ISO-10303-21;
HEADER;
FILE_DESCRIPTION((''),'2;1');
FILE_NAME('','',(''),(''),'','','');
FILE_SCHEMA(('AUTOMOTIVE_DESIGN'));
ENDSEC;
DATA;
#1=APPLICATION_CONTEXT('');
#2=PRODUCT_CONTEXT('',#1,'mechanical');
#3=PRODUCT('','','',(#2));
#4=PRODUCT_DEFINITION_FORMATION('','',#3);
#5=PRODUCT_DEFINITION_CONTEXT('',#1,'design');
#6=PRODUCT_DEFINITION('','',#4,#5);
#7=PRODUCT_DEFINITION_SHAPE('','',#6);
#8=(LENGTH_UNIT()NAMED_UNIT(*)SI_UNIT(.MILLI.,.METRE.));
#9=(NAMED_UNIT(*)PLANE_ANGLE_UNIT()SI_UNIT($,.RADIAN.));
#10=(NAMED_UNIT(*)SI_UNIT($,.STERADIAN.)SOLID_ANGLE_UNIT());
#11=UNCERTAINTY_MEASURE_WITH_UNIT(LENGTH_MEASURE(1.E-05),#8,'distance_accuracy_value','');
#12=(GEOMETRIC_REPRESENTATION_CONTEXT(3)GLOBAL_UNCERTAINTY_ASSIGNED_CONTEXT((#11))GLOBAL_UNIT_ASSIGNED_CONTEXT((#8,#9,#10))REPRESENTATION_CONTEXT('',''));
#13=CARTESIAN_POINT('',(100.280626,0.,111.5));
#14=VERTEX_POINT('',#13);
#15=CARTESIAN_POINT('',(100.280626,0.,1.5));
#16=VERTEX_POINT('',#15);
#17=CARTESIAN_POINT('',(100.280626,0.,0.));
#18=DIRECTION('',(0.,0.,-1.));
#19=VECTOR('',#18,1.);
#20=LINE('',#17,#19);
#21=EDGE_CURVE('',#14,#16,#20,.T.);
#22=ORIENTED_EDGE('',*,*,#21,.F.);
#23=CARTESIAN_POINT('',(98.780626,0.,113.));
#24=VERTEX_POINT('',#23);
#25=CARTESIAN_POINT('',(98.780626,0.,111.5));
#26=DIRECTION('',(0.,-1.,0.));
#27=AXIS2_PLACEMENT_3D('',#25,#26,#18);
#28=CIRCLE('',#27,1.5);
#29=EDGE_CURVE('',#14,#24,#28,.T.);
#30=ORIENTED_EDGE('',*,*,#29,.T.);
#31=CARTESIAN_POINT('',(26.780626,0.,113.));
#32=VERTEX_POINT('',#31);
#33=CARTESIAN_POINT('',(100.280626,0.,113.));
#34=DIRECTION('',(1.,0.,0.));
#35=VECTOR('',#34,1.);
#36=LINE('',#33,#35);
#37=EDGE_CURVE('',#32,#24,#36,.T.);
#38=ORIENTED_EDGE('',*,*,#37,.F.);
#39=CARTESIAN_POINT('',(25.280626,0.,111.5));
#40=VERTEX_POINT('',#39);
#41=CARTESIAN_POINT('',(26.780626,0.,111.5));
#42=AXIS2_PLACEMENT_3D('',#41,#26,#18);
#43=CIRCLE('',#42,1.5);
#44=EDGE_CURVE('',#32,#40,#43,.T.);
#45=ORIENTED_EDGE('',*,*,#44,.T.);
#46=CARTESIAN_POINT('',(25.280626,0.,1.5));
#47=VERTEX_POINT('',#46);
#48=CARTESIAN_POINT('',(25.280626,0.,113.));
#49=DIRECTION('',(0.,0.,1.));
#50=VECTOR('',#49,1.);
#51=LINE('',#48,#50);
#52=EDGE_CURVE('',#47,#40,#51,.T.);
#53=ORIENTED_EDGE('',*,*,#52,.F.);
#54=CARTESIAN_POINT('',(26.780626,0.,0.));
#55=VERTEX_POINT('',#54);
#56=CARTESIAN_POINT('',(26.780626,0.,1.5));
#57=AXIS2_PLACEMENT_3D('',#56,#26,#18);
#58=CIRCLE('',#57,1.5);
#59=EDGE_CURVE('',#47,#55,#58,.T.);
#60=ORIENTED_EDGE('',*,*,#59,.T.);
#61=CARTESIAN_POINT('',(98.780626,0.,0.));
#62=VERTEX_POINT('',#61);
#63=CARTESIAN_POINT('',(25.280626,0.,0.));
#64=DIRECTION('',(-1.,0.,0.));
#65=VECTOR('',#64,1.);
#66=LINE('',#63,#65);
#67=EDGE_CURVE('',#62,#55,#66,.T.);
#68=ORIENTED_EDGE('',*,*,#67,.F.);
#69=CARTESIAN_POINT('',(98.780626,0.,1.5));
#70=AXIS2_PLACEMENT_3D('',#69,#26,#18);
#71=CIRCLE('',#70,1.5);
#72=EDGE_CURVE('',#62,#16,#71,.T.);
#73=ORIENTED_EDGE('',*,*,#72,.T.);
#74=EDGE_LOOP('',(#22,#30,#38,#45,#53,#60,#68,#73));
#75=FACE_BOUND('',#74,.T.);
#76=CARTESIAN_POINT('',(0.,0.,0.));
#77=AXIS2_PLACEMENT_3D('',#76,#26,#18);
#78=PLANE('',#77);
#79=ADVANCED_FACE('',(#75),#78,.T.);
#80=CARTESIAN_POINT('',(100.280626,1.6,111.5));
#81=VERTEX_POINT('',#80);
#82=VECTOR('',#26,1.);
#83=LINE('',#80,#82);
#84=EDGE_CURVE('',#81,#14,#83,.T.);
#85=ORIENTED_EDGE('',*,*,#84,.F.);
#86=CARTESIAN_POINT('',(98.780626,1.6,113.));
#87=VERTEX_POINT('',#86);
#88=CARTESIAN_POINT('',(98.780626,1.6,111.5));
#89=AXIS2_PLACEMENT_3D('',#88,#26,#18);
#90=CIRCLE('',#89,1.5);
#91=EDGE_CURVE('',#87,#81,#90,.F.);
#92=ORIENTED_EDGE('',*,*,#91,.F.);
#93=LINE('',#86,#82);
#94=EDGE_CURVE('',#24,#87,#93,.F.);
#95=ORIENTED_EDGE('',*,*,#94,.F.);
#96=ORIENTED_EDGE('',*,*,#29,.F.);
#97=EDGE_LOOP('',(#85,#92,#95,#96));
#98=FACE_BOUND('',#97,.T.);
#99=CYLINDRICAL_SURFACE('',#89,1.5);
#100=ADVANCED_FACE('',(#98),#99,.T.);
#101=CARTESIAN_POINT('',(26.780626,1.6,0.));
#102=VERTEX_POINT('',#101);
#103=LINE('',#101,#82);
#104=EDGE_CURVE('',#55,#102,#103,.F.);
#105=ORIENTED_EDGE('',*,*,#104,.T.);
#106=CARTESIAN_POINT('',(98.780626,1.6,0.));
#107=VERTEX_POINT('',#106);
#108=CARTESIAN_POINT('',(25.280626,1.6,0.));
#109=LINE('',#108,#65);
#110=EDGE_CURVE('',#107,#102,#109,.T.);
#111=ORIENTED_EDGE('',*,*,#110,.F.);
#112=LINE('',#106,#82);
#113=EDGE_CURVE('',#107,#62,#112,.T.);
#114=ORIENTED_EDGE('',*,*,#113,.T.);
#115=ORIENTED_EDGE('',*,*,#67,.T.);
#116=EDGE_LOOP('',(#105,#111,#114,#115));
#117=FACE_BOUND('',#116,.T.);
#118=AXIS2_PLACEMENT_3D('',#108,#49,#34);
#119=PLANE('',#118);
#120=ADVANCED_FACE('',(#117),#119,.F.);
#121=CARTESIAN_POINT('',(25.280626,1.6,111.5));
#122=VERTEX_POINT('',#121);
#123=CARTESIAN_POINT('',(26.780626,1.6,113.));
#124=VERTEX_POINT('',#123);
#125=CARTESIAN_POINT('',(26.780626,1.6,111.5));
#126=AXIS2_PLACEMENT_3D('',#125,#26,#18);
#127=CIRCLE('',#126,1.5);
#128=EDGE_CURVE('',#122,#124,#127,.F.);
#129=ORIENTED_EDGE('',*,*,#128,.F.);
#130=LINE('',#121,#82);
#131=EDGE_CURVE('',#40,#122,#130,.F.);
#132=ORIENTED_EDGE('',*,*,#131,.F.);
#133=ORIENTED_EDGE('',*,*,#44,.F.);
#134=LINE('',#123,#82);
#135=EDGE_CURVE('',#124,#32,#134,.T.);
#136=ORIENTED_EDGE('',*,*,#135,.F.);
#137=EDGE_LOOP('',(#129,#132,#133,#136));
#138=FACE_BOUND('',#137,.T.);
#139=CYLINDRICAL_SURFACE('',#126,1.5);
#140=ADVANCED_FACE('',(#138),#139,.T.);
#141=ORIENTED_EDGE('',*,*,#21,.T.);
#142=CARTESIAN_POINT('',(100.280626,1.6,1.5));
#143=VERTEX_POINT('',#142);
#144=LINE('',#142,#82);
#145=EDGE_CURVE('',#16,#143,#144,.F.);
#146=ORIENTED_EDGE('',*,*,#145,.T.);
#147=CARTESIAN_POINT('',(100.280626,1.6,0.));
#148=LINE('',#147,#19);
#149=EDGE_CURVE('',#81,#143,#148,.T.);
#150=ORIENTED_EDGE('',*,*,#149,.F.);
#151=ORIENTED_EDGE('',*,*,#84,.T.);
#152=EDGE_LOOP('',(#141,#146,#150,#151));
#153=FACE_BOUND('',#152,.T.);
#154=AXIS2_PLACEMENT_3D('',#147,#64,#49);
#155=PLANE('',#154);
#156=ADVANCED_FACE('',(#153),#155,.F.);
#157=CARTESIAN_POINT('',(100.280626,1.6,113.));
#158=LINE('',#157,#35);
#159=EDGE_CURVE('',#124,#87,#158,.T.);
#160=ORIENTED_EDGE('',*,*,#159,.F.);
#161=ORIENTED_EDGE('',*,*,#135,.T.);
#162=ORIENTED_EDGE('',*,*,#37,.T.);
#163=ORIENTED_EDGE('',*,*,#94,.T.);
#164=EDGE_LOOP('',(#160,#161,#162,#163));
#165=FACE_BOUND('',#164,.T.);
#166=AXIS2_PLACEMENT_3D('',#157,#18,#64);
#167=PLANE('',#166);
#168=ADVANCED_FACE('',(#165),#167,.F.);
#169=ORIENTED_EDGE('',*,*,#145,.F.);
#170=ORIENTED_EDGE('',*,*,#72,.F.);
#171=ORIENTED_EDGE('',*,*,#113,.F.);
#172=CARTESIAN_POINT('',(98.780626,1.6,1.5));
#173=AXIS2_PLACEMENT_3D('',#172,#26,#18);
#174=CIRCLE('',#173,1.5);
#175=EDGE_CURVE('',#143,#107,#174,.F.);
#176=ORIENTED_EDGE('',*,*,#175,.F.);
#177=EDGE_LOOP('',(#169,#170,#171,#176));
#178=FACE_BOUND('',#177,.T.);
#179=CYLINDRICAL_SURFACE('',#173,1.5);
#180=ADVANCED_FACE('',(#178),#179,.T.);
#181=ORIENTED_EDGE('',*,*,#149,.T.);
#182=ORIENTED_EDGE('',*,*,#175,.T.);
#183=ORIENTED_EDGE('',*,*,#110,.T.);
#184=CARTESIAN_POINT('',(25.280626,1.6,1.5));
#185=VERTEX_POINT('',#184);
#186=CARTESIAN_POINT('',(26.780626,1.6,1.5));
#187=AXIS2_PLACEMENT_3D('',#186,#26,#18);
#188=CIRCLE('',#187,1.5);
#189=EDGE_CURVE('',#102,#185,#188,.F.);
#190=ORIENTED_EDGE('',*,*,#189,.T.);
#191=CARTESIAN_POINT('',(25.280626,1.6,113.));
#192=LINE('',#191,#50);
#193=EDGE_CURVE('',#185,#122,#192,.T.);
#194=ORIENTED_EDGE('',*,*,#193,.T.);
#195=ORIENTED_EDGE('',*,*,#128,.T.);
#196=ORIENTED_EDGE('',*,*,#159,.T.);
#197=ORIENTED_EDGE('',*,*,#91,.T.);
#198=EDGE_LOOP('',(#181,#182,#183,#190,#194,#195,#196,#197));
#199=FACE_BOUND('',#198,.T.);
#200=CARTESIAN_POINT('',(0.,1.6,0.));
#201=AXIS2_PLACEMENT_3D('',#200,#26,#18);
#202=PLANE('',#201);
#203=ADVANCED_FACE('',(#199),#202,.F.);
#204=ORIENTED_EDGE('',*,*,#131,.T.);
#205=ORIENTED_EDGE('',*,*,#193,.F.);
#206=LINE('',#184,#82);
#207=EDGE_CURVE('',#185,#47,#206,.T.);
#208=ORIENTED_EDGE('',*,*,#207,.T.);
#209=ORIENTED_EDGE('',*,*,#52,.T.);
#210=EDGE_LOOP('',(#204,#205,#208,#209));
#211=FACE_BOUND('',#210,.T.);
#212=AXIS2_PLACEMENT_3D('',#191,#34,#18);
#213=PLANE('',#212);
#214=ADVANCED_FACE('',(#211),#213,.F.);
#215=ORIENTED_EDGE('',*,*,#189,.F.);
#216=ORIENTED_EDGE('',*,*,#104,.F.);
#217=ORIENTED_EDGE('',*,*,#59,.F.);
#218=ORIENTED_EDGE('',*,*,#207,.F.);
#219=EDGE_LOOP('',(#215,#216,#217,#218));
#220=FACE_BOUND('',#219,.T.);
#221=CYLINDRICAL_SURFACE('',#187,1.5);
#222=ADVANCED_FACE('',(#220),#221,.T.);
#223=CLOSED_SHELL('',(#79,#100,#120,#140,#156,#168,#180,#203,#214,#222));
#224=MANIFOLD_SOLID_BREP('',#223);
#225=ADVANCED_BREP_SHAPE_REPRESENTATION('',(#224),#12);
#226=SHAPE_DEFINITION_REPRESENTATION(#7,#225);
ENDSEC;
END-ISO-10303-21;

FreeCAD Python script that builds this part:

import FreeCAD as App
import Part
import Sketcher


def edges_at(feature, points):
    """Names of the edges that pass closest to the given points."""
    edges = feature.Shape.Edges
    near = lambda p: min(range(len(edges)), key=lambda i: edges[i].distToShape(Part.Vertex(*p))[0])
    return sorted({f"Edge{near(p) + 1}" for p in points})

doc = App.newDocument("Part")
params = doc.addObject("Spreadsheet::Sheet", "Params")
for row, (alias, value) in enumerate([
    ("sketch1_width", "75 mm"),
    ("sketch1_height", "113 mm"),
    ("pad1_length", "1.6 mm"),
    ("fillet_radius", "1.5 mm"),
], start=1):
    params.set(f"A{row}", alias)
    params.set(f"B{row}", "=" + value)
    params.setAlias(f"B{row}", alias)

body = doc.addObject("PartDesign::Body", "Body")

# Sketch on XZ plane
sketch1 = doc.addObject("Sketcher::SketchObject", "Sketch")
body.addObject(sketch1)
sketch1.AttachmentSupport = (doc.XZ_Plane, [""])
sketch1.MapMode = "FlatFace"
sketch1.addGeometry([
    Part.LineSegment(App.Vector(25.280626, 0, 0), App.Vector(25.280626, 113, 0)),
    Part.LineSegment(App.Vector(25.280626, 113, 0), App.Vector(100.280626, 113, 0)),
    Part.LineSegment(App.Vector(100.280626, 113, 0), App.Vector(100.280626, 0, 0)),
    Part.LineSegment(App.Vector(100.280626, 0, 0), App.Vector(25.280626, 0, 0)),
], False)
sketch1.addConstraint([
    Sketcher.Constraint("Coincident", 0, 2, 1, 1),
    Sketcher.Constraint("Coincident", 1, 2, 2, 1),
    Sketcher.Constraint("Coincident", 2, 2, 3, 1),
    Sketcher.Constraint("Coincident", 3, 2, 0, 1),
    Sketcher.Constraint("Vertical", 0),
    Sketcher.Constraint("Horizontal", 1),
    Sketcher.Constraint("Vertical", 2),
    Sketcher.Constraint("Horizontal", 3),
    Sketcher.Constraint("PointOnObject", 2, 2, -1),
    Sketcher.Constraint("DistanceX", 1, 1, 1, 2, 75.0),
    Sketcher.Constraint("DistanceY", 0, 1, 0, 2, 113.0),
    Sketcher.Constraint("DistanceX", -1, 1, 0, 2, 25.280626),
])
sketch1.setExpression("Constraints[9]", "Params.sketch1_width")
sketch1.setExpression("Constraints[10]", "Params.sketch1_height")
pad1 = doc.addObject("PartDesign::Pad", "Pad")
body.addObject(pad1)
pad1.Profile = sketch1
pad1.setExpression("Length", "Params.pad1_length")
pad1.Reversed = True
doc.recompute()

fillet = doc.addObject("PartDesign::Fillet", "Fillet")
body.addObject(fillet)
fillet.Base = (pad1, edges_at(pad1, [
    (25.281, 0.8, 0),
    (100.281, 0.8, 0),
    (100.281, 0.8, 113),
    (25.281, 0.8, 113),
]))
fillet.setExpression("Radius", "Params.fillet_radius")

doc.recompute()
